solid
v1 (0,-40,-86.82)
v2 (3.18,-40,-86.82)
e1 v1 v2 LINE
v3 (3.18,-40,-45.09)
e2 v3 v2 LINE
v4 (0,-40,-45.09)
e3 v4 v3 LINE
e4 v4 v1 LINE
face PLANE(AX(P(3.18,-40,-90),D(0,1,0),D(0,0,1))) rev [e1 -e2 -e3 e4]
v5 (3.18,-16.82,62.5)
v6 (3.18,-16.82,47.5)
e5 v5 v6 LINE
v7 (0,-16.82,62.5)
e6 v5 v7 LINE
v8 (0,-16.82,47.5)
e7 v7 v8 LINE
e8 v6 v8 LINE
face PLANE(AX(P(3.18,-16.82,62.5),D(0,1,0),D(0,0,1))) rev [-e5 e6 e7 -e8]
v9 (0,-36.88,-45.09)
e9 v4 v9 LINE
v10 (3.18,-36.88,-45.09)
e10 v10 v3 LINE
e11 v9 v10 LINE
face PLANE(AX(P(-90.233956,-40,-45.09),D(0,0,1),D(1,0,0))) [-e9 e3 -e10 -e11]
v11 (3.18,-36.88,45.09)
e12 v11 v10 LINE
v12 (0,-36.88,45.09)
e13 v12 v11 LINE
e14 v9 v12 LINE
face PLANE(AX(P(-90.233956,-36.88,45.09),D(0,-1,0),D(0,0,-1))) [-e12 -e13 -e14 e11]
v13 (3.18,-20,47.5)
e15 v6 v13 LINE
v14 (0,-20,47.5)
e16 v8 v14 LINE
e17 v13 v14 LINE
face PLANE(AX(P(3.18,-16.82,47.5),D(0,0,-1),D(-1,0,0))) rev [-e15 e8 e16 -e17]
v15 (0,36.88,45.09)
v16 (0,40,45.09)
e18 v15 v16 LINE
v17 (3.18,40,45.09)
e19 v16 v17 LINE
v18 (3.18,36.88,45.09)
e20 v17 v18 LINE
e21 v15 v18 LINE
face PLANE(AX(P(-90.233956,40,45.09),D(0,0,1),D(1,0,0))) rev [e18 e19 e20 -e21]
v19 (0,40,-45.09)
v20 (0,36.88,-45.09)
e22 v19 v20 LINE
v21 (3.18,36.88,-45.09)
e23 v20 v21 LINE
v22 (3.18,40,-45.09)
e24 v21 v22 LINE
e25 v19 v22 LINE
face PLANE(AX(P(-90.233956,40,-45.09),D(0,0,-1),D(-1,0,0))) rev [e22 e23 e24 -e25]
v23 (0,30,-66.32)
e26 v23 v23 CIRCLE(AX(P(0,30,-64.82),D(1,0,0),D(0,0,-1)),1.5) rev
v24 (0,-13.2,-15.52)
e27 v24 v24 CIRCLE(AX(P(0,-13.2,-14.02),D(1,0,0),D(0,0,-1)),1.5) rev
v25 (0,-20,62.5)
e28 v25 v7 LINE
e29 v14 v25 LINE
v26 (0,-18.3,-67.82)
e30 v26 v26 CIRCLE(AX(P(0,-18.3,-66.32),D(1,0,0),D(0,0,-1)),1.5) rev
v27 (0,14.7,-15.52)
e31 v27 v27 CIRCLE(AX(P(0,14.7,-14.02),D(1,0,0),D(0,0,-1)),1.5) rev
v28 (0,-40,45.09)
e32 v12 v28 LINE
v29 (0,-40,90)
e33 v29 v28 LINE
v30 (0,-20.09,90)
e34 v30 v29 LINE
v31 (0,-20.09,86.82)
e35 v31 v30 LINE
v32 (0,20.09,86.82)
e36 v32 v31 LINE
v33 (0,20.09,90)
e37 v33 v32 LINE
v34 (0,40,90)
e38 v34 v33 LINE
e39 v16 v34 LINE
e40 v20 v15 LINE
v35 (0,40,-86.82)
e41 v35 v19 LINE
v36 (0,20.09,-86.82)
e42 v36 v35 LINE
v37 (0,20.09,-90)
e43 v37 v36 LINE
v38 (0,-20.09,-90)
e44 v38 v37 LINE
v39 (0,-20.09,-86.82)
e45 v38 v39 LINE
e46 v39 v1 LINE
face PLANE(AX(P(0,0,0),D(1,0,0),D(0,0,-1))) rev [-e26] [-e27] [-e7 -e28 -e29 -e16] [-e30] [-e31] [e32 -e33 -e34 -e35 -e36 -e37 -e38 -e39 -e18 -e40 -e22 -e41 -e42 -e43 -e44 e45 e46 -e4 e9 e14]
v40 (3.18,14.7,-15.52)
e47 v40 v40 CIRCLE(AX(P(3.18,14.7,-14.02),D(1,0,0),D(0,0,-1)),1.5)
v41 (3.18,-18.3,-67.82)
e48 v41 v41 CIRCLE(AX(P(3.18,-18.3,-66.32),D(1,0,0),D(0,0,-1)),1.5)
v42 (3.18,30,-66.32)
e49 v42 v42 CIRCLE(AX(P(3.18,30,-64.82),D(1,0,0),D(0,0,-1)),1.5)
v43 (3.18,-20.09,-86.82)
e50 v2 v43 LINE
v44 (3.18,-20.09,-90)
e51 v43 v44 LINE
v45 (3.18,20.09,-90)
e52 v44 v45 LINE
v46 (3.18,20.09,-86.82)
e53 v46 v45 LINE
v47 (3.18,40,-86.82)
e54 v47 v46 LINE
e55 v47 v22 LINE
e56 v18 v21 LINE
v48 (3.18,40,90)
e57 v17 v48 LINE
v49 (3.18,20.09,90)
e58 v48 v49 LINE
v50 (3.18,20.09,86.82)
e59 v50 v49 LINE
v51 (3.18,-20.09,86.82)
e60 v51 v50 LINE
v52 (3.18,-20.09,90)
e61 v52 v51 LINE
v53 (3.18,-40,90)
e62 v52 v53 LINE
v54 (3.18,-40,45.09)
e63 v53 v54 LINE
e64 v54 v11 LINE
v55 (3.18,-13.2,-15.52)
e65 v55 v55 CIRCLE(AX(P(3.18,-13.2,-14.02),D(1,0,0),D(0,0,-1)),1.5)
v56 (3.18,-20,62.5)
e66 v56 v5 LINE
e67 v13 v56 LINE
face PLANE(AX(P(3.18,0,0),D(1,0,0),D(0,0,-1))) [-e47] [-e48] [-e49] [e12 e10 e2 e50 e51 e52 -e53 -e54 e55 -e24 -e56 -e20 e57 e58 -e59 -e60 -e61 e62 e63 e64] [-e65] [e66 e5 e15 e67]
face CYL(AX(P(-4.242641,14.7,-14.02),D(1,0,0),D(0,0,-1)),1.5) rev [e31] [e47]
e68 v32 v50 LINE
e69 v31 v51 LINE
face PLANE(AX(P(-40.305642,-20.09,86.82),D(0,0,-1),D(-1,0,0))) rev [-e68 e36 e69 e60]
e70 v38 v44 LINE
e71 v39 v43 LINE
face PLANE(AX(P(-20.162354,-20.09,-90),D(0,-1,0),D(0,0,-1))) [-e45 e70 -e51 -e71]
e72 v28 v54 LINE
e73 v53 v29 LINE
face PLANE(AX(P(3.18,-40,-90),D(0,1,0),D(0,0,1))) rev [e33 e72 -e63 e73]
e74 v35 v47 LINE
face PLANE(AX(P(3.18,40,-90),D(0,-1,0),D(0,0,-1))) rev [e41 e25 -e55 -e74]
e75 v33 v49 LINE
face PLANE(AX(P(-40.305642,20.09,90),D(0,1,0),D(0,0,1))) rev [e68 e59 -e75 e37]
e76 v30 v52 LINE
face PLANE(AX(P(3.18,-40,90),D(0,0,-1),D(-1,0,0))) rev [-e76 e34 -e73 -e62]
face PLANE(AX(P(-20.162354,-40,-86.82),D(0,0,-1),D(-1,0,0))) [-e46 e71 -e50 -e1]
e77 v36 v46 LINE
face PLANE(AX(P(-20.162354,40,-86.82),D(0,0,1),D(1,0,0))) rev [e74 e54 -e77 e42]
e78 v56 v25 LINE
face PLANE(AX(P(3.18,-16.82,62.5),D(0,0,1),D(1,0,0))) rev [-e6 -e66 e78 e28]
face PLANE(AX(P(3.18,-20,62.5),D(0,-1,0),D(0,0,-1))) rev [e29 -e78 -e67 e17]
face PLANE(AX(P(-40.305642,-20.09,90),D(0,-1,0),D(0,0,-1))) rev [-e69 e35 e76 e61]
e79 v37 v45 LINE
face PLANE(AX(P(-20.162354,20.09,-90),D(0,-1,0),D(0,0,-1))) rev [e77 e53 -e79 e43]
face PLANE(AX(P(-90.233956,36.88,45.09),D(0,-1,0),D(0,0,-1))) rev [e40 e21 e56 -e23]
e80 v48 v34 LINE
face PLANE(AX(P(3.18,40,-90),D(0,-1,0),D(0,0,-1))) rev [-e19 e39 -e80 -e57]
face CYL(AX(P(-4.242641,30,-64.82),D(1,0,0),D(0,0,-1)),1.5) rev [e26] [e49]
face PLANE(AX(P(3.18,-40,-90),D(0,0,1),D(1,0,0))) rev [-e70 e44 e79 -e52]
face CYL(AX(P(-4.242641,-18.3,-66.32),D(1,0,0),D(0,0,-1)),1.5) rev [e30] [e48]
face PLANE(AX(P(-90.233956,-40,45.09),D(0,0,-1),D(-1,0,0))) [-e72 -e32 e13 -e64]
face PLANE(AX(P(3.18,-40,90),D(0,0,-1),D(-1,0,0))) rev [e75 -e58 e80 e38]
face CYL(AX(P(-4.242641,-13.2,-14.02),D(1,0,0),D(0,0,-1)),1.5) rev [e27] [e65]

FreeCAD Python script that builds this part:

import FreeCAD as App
import Part
import Sketcher
from FreeCAD import Vector
Q = App.Units.Quantity

doc = App.newDocument("Part")
body = doc.addObject("PartDesign::Body", "Body")

# Sketch on YZ plane
sketch1 = body.newObject("Sketcher::SketchObject", "Sketch")
sketch1.AttachmentSupport = (doc.getObject("YZ_Plane"), [""])
sketch1.MapMode = "FlatFace"
sketch1.addGeometry([
    Part.LineSegment(Vector(40, 90, 0), Vector(-40, 90, 0)),
    Part.LineSegment(Vector(-40, 90, 0), Vector(-40, -90, 0)),
    Part.LineSegment(Vector(-40, -90, 0), Vector(40, -90, 0)),
    Part.LineSegment(Vector(40, -90, 0), Vector(40, 90, 0)),
], False)
sketch1.addConstraint([
    Sketcher.Constraint("Coincident", 0, 2, 1, 1),
    Sketcher.Constraint("Coincident", 1, 2, 2, 1),
    Sketcher.Constraint("Coincident", 2, 2, 3, 1),
    Sketcher.Constraint("Coincident", 3, 2, 0, 1),
    Sketcher.Constraint("Horizontal", 0),
    Sketcher.Constraint("Vertical", 1),
    Sketcher.Constraint("Horizontal", 2),
    Sketcher.Constraint("Vertical", 3),
    Sketcher.Constraint("Symmetric", 0, 2, 2, 2, -1, 1),
    Sketcher.Constraint("DistanceX", 0, 2, 0, 1, Q("80 mm")),
    Sketcher.Constraint("DistanceY", 1, 2, 1, 1, Q("180 mm")),
])
pad1 = body.newObject("PartDesign::Pad", "Pad")
pad1.Profile = sketch1
pad1.Length = 3.18

# Sketch on YZ plane
sketch2 = body.newObject("Sketcher::SketchObject", "Sketch001")
sketch2.AttachmentSupport = (doc.getObject("YZ_Plane"), [""])
sketch2.MapMode = "FlatFace"
sketch2.AttachmentOffset = App.Placement(Vector(0, 0, 3.18), App.Rotation())
sketch2.addGeometry([
    Part.LineSegment(Vector(20.09, 90, 0), Vector(-20.09, 90, 0)),
    Part.LineSegment(Vector(-20.09, 90, 0), Vector(-20.09, 86.82, 0)),
    Part.LineSegment(Vector(-20.09, 86.82, 0), Vector(20.09, 86.82, 0)),
    Part.LineSegment(Vector(20.09, 86.82, 0), Vector(20.09, 90, 0)),
], False)
sketch2.addConstraint([
    Sketcher.Constraint("Coincident", 0, 2, 1, 1),
    Sketcher.Constraint("Coincident", 1, 2, 2, 1),
    Sketcher.Constraint("Coincident", 2, 2, 3, 1),
    Sketcher.Constraint("Coincident", 3, 2, 0, 1),
    Sketcher.Constraint("Horizontal", 0),
    Sketcher.Constraint("Vertical", 1),
    Sketcher.Constraint("Horizontal", 2),
    Sketcher.Constraint("Vertical", 3),
    Sketcher.Constraint("DistanceY", -1, 1, 0, 2, Q("90 mm")),
    Sketcher.Constraint("DistanceX", 0, 2, 0, 1, Q("40.18 mm")),
    Sketcher.Constraint("DistanceY", 1, 2, 1, 1, Q("3.18 mm")),
    Sketcher.Constraint("DistanceX", 0, 2, -1, 1, Q("20.09 mm")),
])
pocket1 = body.newObject("PartDesign::Pocket", "Pocket")
pocket1.Profile = sketch2
pocket1.Length = 3.18

# Sketch on YZ plane
sketch3 = body.newObject("Sketcher::SketchObject", "Sketch002")
sketch3.AttachmentSupport = (doc.getObject("YZ_Plane"), [""])
sketch3.MapMode = "FlatFace"
sketch3.AttachmentOffset = App.Placement(Vector(0, 0, 3.18), App.Rotation())
sketch3.addGeometry([
    Part.LineSegment(Vector(40, 45.09, 0), Vector(36.88, 45.09, 0)),
    Part.LineSegment(Vector(36.88, 45.09, 0), Vector(36.88, -45.09, 0)),
    Part.LineSegment(Vector(36.88, -45.09, 0), Vector(40, -45.09, 0)),
    Part.LineSegment(Vector(40, -45.09, 0), Vector(40, 45.09, 0)),
], False)
sketch3.addConstraint([
    Sketcher.Constraint("Coincident", 0, 2, 1, 1),
    Sketcher.Constraint("Coincident", 1, 2, 2, 1),
    Sketcher.Constraint("Coincident", 2, 2, 3, 1),
    Sketcher.Constraint("Coincident", 3, 2, 0, 1),
    Sketcher.Constraint("Horizontal", 0),
    Sketcher.Constraint("Vertical", 1),
    Sketcher.Constraint("Horizontal", 2),
    Sketcher.Constraint("Vertical", 3),
    Sketcher.Constraint("DistanceX", -1, 1, 2, 2, Q("40 mm")),
    Sketcher.Constraint("DistanceX", 0, 2, 0, 1, Q("3.12 mm")),
    Sketcher.Constraint("DistanceY", 1, 2, 1, 1, Q("90.18 mm")),
    Sketcher.Constraint("DistanceY", -1, 1, 0, 2, Q("45.09 mm")),
])
pocket2 = body.newObject("PartDesign::Pocket", "Pocket001")
pocket2.Profile = sketch3
pocket2.Length = 3.18
doc.recompute()

mirrored = body.newObject("PartDesign::Mirrored", "Mirrored")
mirrored.Originals = [pocket2]
mirrored.MirrorPlane = (doc.getObject("XZ_Plane"), [""])
body.Tip = mirrored

# Sketch on YZ plane
sketch4 = body.newObject("Sketcher::SketchObject", "Sketch003")
sketch4.AttachmentSupport = (doc.getObject("YZ_Plane"), [""])
sketch4.MapMode = "FlatFace"
sketch4.AttachmentOffset = App.Placement(Vector(0, 0, 3.18), App.Rotation())
sketch4.addGeometry([
    Part.LineSegment(Vector(40, -86.82, 0), Vector(20.09, -86.82, 0)),
    Part.LineSegment(Vector(20.09, -86.82, 0), Vector(20.09, -90, 0)),
    Part.LineSegment(Vector(20.09, -90, 0), Vector(40, -90, 0)),
    Part.LineSegment(Vector(40, -90, 0), Vector(40, -86.82, 0)),
], False)
sketch4.addConstraint([
    Sketcher.Constraint("Coincident", 0, 2, 1, 1),
    Sketcher.Constraint("Coincident", 1, 2, 2, 1),
    Sketcher.Constraint("Coincident", 2, 2, 3, 1),
    Sketcher.Constraint("Coincident", 3, 2, 0, 1),
    Sketcher.Constraint("Horizontal", 0),
    Sketcher.Constraint("Vertical", 1),
    Sketcher.Constraint("Horizontal", 2),
    Sketcher.Constraint("Vertical", 3),
    Sketcher.Constraint("DistanceY", 1, 2, -1, 1, Q("90 mm")),
    Sketcher.Constraint("DistanceX", -1, 1, 2, 2, Q("40 mm")),
    Sketcher.Constraint("DistanceX", 0, 2, 0, 1, Q("19.91 mm")),
    Sketcher.Constraint("DistanceY", 1, 2, 1, 1, Q("3.18 mm")),
])
pocket3 = body.newObject("PartDesign::Pocket", "Pocket002")
pocket3.Profile = sketch4
pocket3.Length = 3.18
doc.recompute()

mirrored2 = body.newObject("PartDesign::Mirrored", "Mirrored001")
mirrored2.Originals = [pocket3]
mirrored2.MirrorPlane = (doc.getObject("XZ_Plane"), [""])
body.Tip = mirrored2

# Sketch on YZ plane
sketch5 = body.newObject("Sketcher::SketchObject", "Sketch004")
sketch5.AttachmentSupport = (doc.getObject("YZ_Plane"), [""])
sketch5.MapMode = "FlatFace"
sketch5.AttachmentOffset = App.Placement(Vector(0, 0, 3.18), App.Rotation())
sketch5.addGeometry([
    Part.Circle(Vector(30, -64.82, 0), Vector(0, 0, 1), 1.5),
    Part.Circle(Vector(14.7, -14.02, 0), Vector(0, 0, 1), 1.5),
    Part.Circle(Vector(-13.2, -14.02, 0), Vector(0, 0, 1), 1.5),
    Part.Circle(Vector(-18.3, -66.32, 0), Vector(0, 0, 1), 1.5),
], False)
sketch5.addConstraint([
    Sketcher.Constraint("Equal", 0, 1),
    Sketcher.Constraint("Equal", 1, 2),
    Sketcher.Constraint("Equal", 2, 3),
    Sketcher.Constraint("Horizontal", 1, 3, 2, 3),
    Sketcher.Constraint("Diameter", 0, Q("3 mm")),
    Sketcher.Constraint("DistanceX", -1, 1, 0, 3, Q("30 mm")),
    Sketcher.Constraint("DistanceX", 3, 3, 1, 3, Q("33 mm")),
    Sketcher.Constraint("DistanceX", -1, 1, 1, 3, Q("14.7 mm")),
    Sketcher.Constraint("DistanceX", 2, 3, -1, 1, Q("13.2 mm")),
    Sketcher.Constraint("DistanceY", 0, 3, 1, 3, Q("50.8 mm")),
    Sketcher.Constraint("DistanceY", 3, 3, 0, 3, Q("1.5 mm")),
    Sketcher.Constraint("DistanceY", 0, 3, -1, 1, Q("64.82 mm")),
])
pocket4 = body.newObject("PartDesign::Pocket", "Pocket003")
pocket4.Profile = sketch5
pocket4.Length = 3.18

# Sketch on YZ plane
sketch6 = body.newObject("Sketcher::SketchObject", "Sketch005")
sketch6.AttachmentSupport = (doc.getObject("YZ_Plane"), [""])
sketch6.MapMode = "FlatFace"
sketch6.addGeometry([
    Part.LineSegment(Vector(-16.82, 47.5, 0), Vector(-20, 47.5, 0)),
    Part.LineSegment(Vector(-20, 47.5, 0), Vector(-20, 62.5, 0)),
    Part.LineSegment(Vector(-20, 62.5, 0), Vector(-16.82, 62.5, 0)),
    Part.LineSegment(Vector(-16.82, 62.5, 0), Vector(-16.82, 47.5, 0)),
], False)
sketch6.addConstraint([
    Sketcher.Constraint("Coincident", 0, 2, 1, 1),
    Sketcher.Constraint("Coincident", 1, 2, 2, 1),
    Sketcher.Constraint("Coincident", 2, 2, 3, 1),
    Sketcher.Constraint("Coincident", 3, 2, 0, 1),
    Sketcher.Constraint("Horizontal", 0),
    Sketcher.Constraint("Vertical", 1),
    Sketcher.Constraint("Horizontal", 2),
    Sketcher.Constraint("Vertical", 3),
    Sketcher.Constraint("DistanceY", 1, 1, 1, 2, Q("15 mm")),
    Sketcher.Constraint("DistanceX", 0, 2, -1, 1, Q("20 mm")),
    Sketcher.Constraint("DistanceX", 0, 2, 0, 1, Q("3.18 mm")),
    Sketcher.Constraint("DistanceY", -1, 1, 0, 2, Q("47.5 mm")),
])
pocket5 = body.newObject("PartDesign::Pocket", "Pocket004")
pocket5.Profile = sketch6
pocket5.Type = "ThroughAll"
pocket5.Reversed = True

doc.recompute()
